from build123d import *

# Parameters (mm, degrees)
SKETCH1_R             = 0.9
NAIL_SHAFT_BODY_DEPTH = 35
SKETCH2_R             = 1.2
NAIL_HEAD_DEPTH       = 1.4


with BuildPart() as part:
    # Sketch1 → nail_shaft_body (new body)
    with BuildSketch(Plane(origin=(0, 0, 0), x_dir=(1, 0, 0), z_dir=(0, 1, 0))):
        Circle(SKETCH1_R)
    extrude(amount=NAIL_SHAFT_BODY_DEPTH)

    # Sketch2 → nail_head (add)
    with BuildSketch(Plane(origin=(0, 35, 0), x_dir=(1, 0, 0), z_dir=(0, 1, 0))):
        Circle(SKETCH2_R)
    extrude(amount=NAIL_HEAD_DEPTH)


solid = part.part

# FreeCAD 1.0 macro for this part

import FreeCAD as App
import Part
import Sketcher
from FreeCAD import Vector
Q = App.Units.Quantity

doc = App.newDocument("Part")
params = doc.addObject("Spreadsheet::Sheet", "Params")
for row, (alias, value) in enumerate([
    ("sketch1_diameter", "1.8 mm"),
    ("pad1_length", "35 mm"),
    ("sketch2_diameter", "2.4 mm"),
    ("pad2_length", "1.4 mm"),
], start=1):
    params.set(f"A{row}", alias)
    params.set(f"B{row}", "=" + value)
    params.setAlias(f"B{row}", alias)

body = doc.addObject("PartDesign::Body", "Body")

sketch1 = body.newObject("Sketcher::SketchObject", "Sketch")
sketch1.AttachmentSupport = (doc.getObject("XZ_Plane"), [""])
sketch1.MapMode = "FlatFace"
sketch1.addGeometry(Part.Circle(Vector(0, 0, 0), Vector(0, 0, 1), 0.9), False)
sketch1.addConstraint(Sketcher.Constraint("Coincident", 0, 3, -1, 1))
sketch1.addConstraint(Sketcher.Constraint("Diameter", 0, Q("1.8 mm")))
sketch1.setExpression("Constraints[1]", "Params.sketch1_diameter")
pad1 = body.newObject("PartDesign::Pad", "Pad")
pad1.Profile = sketch1
pad1.setExpression("Length", "Params.pad1_length")
pad1.Reversed = True

sketch2 = body.newObject("Sketcher::SketchObject", "Sketch001")
sketch2.AttachmentSupport = (doc.getObject("XZ_Plane"), [""])
sketch2.MapMode = "FlatFace"
sketch2.AttachmentOffset = App.Placement(Vector(0, 0, -35), App.Rotation())
sketch2.addGeometry(Part.Circle(Vector(0, 0, 0), Vector(0, 0, 1), 1.2), False)
sketch2.addConstraint(Sketcher.Constraint("Coincident", 0, 3, -1, 1))
sketch2.addConstraint(Sketcher.Constraint("Diameter", 0, Q("2.4 mm")))
sketch2.setExpression("Constraints[1]", "Params.sketch2_diameter")
pad2 = body.newObject("PartDesign::Pad", "Pad001")
pad2.Profile = sketch2
pad2.setExpression("Length", "Params.pad2_length")
pad2.Reversed = True

doc.recompute()
